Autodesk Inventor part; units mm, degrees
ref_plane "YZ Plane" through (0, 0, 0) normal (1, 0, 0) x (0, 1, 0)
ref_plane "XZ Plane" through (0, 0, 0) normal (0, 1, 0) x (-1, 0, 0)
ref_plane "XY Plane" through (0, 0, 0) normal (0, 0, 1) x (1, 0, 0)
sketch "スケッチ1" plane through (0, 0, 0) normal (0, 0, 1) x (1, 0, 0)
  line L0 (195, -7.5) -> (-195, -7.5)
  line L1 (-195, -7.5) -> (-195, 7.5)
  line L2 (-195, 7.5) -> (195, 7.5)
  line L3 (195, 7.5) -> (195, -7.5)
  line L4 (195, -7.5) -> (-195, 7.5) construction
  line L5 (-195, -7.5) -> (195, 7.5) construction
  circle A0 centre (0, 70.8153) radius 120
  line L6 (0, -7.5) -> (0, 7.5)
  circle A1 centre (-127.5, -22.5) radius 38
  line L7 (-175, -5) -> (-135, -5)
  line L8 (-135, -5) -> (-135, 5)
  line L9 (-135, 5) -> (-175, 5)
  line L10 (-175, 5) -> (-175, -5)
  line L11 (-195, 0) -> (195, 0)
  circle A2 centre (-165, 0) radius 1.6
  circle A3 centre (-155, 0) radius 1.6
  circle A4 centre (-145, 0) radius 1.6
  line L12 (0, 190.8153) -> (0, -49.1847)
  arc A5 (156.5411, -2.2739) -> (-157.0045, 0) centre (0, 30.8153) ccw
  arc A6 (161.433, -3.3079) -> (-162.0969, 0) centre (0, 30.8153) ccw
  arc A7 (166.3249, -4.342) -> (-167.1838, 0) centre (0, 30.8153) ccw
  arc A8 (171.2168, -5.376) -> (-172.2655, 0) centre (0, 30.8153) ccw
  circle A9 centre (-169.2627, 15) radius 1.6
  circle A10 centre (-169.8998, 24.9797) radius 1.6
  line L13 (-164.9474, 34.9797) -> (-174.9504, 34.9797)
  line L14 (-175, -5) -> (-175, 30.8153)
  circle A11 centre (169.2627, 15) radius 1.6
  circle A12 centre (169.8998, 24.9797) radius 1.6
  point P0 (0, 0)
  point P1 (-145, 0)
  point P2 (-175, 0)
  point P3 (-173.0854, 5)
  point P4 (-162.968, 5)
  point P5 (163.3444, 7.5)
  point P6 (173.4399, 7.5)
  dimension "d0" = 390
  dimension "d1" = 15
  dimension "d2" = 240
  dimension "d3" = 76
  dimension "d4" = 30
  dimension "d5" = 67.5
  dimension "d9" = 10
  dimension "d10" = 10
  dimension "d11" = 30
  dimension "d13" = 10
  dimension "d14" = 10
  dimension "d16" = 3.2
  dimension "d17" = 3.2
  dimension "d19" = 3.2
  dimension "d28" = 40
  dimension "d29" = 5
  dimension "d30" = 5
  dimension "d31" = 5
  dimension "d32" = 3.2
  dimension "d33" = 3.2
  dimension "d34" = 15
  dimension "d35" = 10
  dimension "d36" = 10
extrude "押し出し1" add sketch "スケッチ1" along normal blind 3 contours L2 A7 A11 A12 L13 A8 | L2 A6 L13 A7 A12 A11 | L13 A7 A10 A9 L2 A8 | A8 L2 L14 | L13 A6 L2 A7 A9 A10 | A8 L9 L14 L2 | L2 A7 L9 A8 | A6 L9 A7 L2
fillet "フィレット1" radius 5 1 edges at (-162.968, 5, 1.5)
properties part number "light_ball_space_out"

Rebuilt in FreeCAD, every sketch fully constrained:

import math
import FreeCAD as App
import Part
import Sketcher

V = App.Vector
Q = App.Units.Quantity


def edges_at(feature, points):
    """Names of the edges that pass closest to the given points."""
    edges = feature.Shape.Edges
    near = lambda p: min(range(len(edges)), key=lambda i: edges[i].distToShape(Part.Vertex(*p))[0])
    return sorted({f"Edge{near(p) + 1}" for p in points})

doc = App.newDocument("Part")
body = doc.addObject("PartDesign::Body", "Body")

sketch1 = doc.addObject("Sketcher::SketchObject", "Sketch")
body.addObject(sketch1)
sketch1.AttachmentSupport = (doc.XY_Plane, [""])
sketch1.MapMode = "FlatFace"
sketch1.addGeometry([
    Part.ArcOfCircle(Part.Circle(V(0, 30.8, 0), V(0, 0, 1), 175), math.radians(-8), math.radians(180)),
    Part.LineSegment(V(-175, 30.8, 0), V(-175, 5, 0)),
    Part.LineSegment(V(-175, 5, 0), V(-163, 5, 0)),
    Part.ArcOfCircle(Part.Circle(V(0, 30.8, 0), V(0, 0, 1), 165), math.radians(-8), math.radians(189)),
    Part.LineSegment(V(163.3, 7.5, 0), V(173.4, 7.5, 0)),
    Part.Circle(V(169.3, 15, 0), V(0, 0, 1), 1.6),
    Part.Circle(V(169.9, 25, 0), V(0, 0, 1), 1.6),
    Part.Circle(V(-169.9, 25, 0), V(0, 0, 1), 1.6),
    Part.Circle(V(-169.3, 15, 0), V(0, 0, 1), 1.6),
], False)
sketch1.addConstraint([
    Sketcher.Constraint("Tangent", 0, 2, 1, 1),
    Sketcher.Constraint("Coincident", 1, 2, 2, 1),
    Sketcher.Constraint("Coincident", 2, 2, 3, 2),
    Sketcher.Constraint("Coincident", 3, 1, 4, 1),
    Sketcher.Constraint("Coincident", 4, 2, 0, 1),
    Sketcher.Constraint("Vertical", 1),
    Sketcher.Constraint("Horizontal", 2),
    Sketcher.Constraint("Horizontal", 4),
    Sketcher.Constraint("Coincident", 3, 3, 0, 3),
    Sketcher.Constraint("Equal", 5, 6),
    Sketcher.Constraint("Equal", 6, 7),
    Sketcher.Constraint("Equal", 7, 8),
    Sketcher.Constraint("Symmetric", 6, 3, 7, 3, -2),
    Sketcher.Constraint("Symmetric", 5, 3, 8, 3, -2),
    Sketcher.Constraint("PointOnObject", 0, 3, -2),
    Sketcher.Constraint("Diameter", 5, Q("3.2 mm")),
    Sketcher.Constraint("DistanceY", -1, 1, 5, 3, Q("15 mm")),
    Sketcher.Constraint("DistanceY", -1, 1, 1, 2, Q("5 mm")),
    Sketcher.Constraint("Radius", 0, Q("175 mm")),
    Sketcher.Constraint("Radius", 3, Q("165 mm")),
    Sketcher.Constraint("DistanceY", -1, 1, 3, 1, Q("7.5 mm")),
    Sketcher.Constraint("DistanceX", 2, 1, 2, 2, Q("12.032 mm")),
    Sketcher.Constraint("DistanceX", 6, 3, 4, 2, Q("3.54 mm")),
    Sketcher.Constraint("DistanceX", 5, 3, 6, 3, Q("0.637 mm")),
    Sketcher.Constraint("DistanceY", -1, 1, 6, 3, Q("24.9797 mm")),
])
pad1 = doc.addObject("PartDesign::Pad", "Pad")
body.addObject(pad1)
pad1.Profile = sketch1
pad1.Length = 3
doc.recompute()

fillet = doc.addObject("PartDesign::Fillet", "Fillet")
body.addObject(fillet)
fillet.Base = (pad1, edges_at(pad1, [(-162.968, 5, 1.5)]))
fillet.Radius = 5

doc.recompute()
